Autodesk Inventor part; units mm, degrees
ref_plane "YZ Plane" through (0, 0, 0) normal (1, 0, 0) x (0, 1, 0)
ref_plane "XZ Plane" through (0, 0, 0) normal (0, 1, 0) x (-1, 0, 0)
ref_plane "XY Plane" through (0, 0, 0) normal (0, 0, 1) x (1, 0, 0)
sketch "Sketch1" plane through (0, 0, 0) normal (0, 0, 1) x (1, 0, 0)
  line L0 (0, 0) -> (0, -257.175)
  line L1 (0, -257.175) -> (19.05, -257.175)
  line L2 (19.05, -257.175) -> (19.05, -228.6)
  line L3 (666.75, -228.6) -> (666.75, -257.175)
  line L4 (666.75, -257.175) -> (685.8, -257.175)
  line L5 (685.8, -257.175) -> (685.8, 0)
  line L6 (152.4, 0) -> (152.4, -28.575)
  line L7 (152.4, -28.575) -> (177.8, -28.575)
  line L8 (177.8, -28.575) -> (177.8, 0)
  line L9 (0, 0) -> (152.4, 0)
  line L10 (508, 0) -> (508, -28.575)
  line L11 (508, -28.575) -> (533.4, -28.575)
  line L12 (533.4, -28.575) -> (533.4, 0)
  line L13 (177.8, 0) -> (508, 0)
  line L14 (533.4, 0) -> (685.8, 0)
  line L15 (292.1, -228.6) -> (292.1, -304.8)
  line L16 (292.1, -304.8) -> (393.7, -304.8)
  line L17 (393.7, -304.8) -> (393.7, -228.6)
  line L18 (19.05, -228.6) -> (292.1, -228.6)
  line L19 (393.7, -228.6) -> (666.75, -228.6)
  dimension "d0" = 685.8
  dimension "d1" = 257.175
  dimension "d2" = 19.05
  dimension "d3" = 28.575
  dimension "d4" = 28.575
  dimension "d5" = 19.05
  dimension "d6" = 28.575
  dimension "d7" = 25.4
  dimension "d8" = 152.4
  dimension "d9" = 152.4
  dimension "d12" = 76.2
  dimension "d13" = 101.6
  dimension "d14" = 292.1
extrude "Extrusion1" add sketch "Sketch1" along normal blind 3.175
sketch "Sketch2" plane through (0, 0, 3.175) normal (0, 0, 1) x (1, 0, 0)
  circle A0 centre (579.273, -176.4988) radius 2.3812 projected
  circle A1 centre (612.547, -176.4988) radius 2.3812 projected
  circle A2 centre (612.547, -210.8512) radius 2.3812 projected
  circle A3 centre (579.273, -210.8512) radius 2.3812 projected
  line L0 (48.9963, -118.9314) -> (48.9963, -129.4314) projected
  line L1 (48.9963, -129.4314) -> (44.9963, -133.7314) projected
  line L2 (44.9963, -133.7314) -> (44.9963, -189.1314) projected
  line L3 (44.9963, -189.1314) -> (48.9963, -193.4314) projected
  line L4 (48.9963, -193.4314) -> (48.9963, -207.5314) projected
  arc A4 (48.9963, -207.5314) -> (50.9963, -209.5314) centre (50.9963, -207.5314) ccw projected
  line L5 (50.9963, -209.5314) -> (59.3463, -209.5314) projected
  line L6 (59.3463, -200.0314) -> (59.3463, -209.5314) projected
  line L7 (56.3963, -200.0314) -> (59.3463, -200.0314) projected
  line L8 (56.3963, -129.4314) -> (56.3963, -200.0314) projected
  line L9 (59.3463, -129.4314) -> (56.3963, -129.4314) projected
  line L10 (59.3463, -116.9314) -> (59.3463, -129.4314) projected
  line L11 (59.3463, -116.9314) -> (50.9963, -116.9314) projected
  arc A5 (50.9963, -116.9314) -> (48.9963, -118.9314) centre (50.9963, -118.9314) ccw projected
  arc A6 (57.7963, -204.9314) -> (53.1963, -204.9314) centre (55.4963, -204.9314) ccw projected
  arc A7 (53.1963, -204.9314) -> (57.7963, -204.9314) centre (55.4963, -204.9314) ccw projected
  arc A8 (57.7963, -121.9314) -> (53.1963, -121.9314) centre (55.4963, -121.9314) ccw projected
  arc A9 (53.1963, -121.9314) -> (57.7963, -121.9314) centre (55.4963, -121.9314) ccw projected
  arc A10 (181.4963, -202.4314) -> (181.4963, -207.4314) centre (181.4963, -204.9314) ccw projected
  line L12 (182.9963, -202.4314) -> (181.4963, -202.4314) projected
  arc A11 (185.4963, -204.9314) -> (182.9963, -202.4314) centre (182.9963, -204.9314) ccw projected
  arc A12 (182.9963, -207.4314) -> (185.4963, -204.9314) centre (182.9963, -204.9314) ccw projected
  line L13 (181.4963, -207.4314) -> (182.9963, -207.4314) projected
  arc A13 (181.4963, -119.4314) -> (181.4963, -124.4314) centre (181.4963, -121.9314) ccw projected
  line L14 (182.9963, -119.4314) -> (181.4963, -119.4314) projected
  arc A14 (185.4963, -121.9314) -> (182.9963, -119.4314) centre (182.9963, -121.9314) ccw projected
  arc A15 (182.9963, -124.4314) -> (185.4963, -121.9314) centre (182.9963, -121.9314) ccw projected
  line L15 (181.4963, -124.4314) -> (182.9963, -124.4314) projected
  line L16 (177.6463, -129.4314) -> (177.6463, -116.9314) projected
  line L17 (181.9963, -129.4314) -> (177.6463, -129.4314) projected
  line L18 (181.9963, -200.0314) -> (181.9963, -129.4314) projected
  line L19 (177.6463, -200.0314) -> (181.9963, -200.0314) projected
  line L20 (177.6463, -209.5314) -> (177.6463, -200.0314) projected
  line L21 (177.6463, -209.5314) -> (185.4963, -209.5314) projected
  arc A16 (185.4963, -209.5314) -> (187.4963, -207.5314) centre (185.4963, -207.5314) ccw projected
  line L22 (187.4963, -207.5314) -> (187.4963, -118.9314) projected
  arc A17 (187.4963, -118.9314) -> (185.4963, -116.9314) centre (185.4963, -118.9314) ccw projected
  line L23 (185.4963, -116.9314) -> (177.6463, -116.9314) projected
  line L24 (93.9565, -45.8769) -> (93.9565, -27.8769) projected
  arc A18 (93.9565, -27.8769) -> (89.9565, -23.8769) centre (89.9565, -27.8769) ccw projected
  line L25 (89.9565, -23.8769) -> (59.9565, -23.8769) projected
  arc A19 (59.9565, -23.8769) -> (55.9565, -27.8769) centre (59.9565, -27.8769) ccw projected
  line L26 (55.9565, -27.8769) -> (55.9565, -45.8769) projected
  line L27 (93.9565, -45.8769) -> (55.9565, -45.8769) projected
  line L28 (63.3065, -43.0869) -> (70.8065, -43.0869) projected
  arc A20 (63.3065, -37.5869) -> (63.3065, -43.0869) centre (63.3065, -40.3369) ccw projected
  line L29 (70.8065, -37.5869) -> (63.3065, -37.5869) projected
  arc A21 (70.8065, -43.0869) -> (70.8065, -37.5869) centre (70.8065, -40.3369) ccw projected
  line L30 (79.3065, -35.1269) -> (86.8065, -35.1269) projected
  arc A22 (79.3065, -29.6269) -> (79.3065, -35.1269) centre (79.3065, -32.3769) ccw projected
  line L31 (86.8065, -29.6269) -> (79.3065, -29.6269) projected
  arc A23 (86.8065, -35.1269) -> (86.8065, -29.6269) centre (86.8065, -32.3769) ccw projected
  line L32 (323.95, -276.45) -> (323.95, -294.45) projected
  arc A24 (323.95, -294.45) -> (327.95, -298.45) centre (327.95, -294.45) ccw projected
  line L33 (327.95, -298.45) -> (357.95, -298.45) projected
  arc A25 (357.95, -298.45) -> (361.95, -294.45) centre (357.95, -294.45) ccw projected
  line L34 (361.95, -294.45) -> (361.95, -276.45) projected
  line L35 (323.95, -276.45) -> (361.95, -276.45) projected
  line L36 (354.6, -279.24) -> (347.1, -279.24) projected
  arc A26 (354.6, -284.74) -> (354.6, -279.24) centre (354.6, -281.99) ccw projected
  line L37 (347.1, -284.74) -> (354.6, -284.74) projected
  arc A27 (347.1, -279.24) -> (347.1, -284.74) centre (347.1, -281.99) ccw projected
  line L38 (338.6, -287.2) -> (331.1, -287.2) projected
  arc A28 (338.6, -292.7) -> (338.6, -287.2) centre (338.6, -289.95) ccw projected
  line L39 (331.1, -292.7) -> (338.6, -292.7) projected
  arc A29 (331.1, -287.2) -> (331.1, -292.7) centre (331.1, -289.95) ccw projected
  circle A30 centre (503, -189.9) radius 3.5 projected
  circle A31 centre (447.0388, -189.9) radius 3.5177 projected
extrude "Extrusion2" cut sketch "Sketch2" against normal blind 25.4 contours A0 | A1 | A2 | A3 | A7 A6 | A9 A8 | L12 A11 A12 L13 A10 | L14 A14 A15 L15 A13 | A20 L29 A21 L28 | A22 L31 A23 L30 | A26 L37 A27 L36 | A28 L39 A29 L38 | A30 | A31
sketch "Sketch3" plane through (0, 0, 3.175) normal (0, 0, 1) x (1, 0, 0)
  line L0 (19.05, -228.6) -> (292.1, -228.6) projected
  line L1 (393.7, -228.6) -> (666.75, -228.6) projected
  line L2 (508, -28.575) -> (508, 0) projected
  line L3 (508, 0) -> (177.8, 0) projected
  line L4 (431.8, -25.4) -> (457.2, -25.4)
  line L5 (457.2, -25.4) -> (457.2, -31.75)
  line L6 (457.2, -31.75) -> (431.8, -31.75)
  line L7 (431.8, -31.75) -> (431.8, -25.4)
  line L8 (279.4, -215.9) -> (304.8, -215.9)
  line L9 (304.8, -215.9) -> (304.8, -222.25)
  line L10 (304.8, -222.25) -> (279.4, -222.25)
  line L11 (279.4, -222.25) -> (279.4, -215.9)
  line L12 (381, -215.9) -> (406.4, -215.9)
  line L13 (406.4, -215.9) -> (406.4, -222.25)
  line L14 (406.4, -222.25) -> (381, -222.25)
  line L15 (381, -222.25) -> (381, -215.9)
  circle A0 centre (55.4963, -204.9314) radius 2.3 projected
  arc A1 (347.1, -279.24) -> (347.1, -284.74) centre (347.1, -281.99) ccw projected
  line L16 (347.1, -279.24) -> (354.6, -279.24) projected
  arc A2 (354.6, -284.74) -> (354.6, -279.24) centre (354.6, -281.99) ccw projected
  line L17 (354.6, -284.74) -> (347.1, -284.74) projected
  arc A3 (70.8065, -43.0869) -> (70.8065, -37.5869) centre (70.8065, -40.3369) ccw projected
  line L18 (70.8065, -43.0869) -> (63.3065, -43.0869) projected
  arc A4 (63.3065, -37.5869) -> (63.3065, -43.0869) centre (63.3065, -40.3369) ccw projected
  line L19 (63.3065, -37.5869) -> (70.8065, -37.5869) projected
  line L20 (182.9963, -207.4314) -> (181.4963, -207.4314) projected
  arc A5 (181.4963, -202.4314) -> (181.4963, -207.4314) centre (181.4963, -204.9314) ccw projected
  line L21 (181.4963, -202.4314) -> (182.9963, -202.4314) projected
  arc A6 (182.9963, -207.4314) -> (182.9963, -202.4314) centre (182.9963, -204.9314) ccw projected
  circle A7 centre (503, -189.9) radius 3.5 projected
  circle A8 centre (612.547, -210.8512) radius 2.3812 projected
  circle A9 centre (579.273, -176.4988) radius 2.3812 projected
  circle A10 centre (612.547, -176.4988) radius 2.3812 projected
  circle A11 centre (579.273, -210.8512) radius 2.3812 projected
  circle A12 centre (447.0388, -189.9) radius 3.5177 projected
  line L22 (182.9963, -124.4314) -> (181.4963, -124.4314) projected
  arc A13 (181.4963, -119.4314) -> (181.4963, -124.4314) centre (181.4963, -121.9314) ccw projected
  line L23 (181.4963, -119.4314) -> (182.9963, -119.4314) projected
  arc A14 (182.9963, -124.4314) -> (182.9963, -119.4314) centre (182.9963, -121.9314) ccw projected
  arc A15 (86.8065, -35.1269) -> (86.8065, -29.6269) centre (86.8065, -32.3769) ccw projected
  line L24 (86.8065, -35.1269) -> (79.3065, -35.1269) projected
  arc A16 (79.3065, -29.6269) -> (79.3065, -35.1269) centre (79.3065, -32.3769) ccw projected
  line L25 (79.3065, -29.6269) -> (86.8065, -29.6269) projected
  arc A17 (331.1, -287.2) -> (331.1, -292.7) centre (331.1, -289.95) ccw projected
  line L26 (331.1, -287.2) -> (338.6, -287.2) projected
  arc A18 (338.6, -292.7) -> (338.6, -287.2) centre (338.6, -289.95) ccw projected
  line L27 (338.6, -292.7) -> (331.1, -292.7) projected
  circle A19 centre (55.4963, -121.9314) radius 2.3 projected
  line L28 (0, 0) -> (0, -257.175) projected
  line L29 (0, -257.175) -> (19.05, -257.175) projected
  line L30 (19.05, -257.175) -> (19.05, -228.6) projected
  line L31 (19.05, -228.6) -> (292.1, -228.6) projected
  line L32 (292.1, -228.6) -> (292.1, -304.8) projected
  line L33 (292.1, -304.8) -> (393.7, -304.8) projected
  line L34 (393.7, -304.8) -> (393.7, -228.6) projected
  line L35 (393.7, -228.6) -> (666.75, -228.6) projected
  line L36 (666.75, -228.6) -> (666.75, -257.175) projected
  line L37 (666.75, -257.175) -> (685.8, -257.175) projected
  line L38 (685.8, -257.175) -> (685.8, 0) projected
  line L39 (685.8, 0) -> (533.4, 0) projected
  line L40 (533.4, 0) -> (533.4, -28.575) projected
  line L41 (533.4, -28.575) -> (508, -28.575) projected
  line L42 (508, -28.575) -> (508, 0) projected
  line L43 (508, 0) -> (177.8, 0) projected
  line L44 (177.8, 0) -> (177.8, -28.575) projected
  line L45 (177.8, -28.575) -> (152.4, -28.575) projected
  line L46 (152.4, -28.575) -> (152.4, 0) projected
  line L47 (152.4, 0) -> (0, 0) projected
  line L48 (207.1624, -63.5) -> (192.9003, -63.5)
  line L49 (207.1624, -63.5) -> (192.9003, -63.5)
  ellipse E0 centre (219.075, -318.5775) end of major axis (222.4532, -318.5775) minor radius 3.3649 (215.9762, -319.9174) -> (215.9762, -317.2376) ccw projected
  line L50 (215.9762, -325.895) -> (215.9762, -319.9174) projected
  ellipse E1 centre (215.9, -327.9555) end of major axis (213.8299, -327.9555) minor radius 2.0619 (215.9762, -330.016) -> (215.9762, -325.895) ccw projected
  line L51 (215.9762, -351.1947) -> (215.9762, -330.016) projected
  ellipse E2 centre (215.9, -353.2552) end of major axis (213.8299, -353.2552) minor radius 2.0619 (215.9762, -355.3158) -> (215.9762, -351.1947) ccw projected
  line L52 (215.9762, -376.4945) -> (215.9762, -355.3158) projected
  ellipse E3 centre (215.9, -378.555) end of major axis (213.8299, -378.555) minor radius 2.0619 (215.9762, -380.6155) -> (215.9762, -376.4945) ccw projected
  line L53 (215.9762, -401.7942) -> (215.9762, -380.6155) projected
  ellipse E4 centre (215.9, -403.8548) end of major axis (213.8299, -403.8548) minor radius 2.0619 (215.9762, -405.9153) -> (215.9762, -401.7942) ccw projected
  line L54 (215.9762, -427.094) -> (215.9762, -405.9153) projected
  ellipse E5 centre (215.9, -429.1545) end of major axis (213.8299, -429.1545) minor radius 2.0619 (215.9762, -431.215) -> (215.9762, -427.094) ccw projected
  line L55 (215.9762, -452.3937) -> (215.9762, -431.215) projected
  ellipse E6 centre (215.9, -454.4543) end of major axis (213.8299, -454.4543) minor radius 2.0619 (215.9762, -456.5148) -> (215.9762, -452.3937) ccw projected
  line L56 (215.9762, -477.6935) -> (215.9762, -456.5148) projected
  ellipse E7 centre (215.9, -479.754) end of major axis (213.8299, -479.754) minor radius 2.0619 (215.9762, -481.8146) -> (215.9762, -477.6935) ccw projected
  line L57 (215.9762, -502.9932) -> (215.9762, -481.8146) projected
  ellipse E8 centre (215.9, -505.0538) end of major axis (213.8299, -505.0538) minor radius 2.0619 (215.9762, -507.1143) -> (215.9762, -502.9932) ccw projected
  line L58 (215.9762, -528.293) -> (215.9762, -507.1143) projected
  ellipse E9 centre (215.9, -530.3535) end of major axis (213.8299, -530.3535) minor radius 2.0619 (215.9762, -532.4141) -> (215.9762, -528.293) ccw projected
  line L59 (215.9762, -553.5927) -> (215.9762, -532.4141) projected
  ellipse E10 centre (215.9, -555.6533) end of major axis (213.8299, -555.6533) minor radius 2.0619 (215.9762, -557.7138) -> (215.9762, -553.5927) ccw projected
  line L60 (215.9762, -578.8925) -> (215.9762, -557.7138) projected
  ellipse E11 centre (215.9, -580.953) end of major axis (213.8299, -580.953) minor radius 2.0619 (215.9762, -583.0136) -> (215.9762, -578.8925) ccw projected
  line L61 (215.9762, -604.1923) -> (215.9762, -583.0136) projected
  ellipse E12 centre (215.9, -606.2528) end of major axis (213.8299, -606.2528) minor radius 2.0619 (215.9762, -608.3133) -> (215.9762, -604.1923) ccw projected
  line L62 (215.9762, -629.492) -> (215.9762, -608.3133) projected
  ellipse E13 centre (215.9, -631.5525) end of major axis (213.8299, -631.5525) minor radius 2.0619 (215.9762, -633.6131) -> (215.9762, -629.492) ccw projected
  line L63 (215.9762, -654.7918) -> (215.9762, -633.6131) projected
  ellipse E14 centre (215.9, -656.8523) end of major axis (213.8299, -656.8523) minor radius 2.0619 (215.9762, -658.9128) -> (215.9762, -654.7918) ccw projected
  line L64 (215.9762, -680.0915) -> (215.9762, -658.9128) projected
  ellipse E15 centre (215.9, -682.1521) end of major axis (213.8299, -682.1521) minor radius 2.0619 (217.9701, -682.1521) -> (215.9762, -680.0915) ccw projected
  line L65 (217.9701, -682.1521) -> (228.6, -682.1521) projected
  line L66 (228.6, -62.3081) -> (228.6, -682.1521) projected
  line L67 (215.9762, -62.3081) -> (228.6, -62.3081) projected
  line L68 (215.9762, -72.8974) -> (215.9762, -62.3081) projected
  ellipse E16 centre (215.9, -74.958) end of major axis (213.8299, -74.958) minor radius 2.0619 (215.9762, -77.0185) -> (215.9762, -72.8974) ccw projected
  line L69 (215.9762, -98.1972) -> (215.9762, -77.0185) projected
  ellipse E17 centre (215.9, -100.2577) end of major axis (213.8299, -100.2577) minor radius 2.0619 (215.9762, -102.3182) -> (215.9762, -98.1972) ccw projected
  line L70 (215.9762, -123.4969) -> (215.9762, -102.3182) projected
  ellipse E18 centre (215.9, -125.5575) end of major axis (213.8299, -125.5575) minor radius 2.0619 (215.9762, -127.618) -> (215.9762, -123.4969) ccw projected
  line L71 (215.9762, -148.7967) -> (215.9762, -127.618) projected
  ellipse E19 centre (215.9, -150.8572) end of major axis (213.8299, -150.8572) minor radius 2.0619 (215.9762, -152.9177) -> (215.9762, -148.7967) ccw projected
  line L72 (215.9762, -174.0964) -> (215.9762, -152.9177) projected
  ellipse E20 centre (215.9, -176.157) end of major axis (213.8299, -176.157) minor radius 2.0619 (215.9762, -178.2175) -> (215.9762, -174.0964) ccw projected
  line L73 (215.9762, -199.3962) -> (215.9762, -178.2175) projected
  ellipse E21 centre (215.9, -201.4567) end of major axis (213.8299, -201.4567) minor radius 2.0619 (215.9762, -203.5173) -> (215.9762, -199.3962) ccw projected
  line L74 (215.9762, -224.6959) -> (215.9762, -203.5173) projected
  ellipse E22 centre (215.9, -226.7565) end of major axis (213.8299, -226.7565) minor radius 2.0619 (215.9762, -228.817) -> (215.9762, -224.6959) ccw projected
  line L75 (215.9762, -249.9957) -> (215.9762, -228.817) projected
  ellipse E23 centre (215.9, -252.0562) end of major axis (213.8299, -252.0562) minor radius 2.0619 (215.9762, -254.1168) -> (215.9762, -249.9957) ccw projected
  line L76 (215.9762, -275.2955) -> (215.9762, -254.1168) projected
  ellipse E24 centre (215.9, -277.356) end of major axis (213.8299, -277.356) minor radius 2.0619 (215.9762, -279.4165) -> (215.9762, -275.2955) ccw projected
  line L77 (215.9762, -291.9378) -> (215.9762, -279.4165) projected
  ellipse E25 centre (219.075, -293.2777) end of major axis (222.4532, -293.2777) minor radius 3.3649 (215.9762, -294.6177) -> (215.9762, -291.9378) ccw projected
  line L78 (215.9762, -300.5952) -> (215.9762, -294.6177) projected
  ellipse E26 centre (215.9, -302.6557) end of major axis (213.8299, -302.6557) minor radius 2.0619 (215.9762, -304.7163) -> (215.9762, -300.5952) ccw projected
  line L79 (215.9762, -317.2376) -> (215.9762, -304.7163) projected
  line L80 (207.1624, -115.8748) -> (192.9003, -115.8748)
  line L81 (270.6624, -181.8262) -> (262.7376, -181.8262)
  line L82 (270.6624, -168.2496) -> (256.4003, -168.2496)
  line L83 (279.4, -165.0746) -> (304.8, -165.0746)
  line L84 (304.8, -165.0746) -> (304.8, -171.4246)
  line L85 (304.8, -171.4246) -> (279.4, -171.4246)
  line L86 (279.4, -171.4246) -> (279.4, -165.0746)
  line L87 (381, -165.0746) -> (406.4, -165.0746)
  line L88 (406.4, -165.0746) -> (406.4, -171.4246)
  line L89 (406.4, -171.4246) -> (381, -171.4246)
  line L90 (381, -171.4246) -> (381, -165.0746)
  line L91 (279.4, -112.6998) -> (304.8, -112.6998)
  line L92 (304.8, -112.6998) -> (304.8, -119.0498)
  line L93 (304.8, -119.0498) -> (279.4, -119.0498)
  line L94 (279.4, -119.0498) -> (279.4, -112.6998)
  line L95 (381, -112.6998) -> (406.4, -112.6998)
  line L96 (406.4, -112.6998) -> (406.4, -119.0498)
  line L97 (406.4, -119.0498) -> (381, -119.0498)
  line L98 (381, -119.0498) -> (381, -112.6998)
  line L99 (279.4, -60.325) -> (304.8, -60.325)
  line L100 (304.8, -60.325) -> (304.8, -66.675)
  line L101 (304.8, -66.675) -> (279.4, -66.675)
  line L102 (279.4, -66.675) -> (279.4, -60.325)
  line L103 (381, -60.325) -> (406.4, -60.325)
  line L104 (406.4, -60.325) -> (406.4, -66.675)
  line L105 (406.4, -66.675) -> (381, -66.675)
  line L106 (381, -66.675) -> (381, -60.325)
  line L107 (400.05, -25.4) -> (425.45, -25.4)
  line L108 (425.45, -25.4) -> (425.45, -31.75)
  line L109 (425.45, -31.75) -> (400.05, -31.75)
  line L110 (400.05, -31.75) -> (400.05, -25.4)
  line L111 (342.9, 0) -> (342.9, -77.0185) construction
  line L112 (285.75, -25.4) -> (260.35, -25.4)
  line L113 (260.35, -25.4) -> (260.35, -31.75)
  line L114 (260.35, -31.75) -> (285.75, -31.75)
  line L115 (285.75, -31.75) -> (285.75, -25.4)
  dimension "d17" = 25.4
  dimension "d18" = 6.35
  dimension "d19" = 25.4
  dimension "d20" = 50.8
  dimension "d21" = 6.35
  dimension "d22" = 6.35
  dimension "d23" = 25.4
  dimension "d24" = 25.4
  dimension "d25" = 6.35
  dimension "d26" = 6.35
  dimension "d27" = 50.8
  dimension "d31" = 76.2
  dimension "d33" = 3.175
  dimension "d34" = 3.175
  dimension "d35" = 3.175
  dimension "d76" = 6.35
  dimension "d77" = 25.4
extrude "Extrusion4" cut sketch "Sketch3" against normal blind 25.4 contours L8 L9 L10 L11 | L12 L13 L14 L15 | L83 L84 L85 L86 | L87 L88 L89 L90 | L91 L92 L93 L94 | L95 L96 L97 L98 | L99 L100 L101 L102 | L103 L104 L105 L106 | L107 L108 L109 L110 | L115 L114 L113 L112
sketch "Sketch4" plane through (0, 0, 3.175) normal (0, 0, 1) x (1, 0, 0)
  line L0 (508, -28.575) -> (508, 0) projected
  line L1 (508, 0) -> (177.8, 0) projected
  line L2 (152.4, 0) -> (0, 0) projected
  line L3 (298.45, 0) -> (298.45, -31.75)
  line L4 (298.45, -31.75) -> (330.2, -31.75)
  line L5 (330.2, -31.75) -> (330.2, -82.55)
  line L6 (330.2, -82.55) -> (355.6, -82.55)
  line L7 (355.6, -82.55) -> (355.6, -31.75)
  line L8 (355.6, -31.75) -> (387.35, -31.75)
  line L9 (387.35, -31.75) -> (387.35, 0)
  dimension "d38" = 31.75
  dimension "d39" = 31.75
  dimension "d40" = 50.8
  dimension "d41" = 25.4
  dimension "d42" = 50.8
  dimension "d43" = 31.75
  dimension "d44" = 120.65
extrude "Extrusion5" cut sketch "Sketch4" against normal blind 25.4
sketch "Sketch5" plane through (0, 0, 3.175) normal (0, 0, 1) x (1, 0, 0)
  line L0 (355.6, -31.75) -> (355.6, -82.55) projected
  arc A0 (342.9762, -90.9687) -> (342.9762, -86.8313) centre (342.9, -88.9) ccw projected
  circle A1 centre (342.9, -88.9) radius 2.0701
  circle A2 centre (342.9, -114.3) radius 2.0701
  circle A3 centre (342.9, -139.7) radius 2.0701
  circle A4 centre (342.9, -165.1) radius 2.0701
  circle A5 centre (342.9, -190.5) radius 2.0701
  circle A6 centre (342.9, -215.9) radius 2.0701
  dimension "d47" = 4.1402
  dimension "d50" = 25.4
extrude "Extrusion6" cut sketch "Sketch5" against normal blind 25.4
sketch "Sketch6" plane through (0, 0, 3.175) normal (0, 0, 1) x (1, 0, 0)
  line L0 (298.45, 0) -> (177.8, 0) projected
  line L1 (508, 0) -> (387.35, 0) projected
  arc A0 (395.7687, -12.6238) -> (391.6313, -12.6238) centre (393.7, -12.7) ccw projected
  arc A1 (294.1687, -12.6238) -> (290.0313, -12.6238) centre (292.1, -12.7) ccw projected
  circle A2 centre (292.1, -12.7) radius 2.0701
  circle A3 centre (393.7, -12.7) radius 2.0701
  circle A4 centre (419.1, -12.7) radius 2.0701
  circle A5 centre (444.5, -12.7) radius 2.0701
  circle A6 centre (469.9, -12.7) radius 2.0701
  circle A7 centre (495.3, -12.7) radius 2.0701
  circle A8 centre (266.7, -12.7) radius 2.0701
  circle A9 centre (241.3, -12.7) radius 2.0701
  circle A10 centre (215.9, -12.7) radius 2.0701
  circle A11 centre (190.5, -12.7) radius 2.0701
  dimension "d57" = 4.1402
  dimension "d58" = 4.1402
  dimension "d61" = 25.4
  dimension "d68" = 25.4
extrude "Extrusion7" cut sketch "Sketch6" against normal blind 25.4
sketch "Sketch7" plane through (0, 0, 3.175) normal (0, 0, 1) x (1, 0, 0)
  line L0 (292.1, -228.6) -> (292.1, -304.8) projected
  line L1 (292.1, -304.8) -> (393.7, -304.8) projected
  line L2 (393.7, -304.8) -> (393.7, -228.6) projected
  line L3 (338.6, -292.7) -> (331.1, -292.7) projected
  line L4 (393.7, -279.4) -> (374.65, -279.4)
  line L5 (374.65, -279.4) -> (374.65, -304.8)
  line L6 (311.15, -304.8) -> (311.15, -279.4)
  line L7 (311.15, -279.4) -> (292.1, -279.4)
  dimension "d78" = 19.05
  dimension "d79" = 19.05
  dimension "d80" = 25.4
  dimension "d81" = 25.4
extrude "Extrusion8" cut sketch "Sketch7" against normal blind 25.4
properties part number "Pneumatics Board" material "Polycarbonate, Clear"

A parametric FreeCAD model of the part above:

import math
import FreeCAD as App
import Part
import Sketcher

V = App.Vector
Q = App.Units.Quantity


def add_polygon(sketch, points):
    """Adds a closed chain of lines whose ends are joined by coincident constraints."""
    first, n = sketch.GeometryCount, len(points)
    for a, b in zip(points, points[1:] + points[:1]):
        sketch.addGeometry(Part.LineSegment(App.Vector(*a, 0), App.Vector(*b, 0)), False)
    for i in range(n):
        sketch.addConstraint(Sketcher.Constraint("Coincident", first + i, 2, first + (i + 1) % n, 1))

doc = App.newDocument("Part")
params = doc.addObject("Spreadsheet::Sheet", "Params")
for row, (alias, value) in enumerate([
    ("sketch1_width", "6 in"),
    ("sketch1_width2", "4 in"),
    ("sketch1_width3", "1 in"),
    ("sketch1_height", "3 in"),
    ("sketch1_width4", "0.75 in"),
    ("pad1_length", "0.125 in"),
    ("sketch2_diameter", "0.1875 in"),
    ("pocket1_length", "1 in"),
    ("sketch3_width", "1 in"),
    ("sketch3_height", "0.25 in"),
    ("pocket2_length", "1 in"),
    ("sketch4_width", "1 in"),
    ("sketch4_height", "2 in"),
    ("sketch4_width2", "1.25 in"),
    ("pocket3_length", "1 in"),
    ("sketch5_diameter", "0.163 in"),
    ("pocket4_length", "1 in"),
    ("sketch6_diameter", "0.163 in"),
    ("pocket5_length", "1 in"),
    ("sketch7_height", "1 in"),
    ("sketch7_width", "0.75 in"),
    ("pocket6_length", "1 in"),
], start=1):
    params.set(f"A{row}", alias)
    params.set(f"B{row}", "=" + value)
    params.setAlias(f"B{row}", alias)

body = doc.addObject("PartDesign::Body", "Body")

sketch1 = body.newObject("Sketcher::SketchObject", "Sketch")
sketch1.AttachmentSupport = (doc.getObject("XY_Plane"), [""])
sketch1.MapMode = "FlatFace"
add_polygon(sketch1, [(152.4, 0), (0, 0), (0, -257.175), (19.05, -257.175), (19.05, -228.6), (292.1, -228.6), (292.1, -304.8), (393.7, -304.8), (393.7, -228.6), (666.75, -228.6), (666.75, -257.175), (685.8, -257.175), (685.8, 0), (533.4, 0), (533.4, -28.575), (508, -28.575), (508, 0), (177.8, 0), (177.8, -28.575), (152.4, -28.575)])
sketch1.addConstraint([
    Sketcher.Constraint("Horizontal", 0),
    Sketcher.Constraint("Vertical", 1),
    Sketcher.Constraint("Horizontal", 2),
    Sketcher.Constraint("Vertical", 3),
    Sketcher.Constraint("Horizontal", 4),
    Sketcher.Constraint("Vertical", 5),
    Sketcher.Constraint("Horizontal", 6),
    Sketcher.Constraint("Vertical", 7),
    Sketcher.Constraint("Horizontal", 8),
    Sketcher.Constraint("Vertical", 9),
    Sketcher.Constraint("Horizontal", 10),
    Sketcher.Constraint("Vertical", 11),
    Sketcher.Constraint("Horizontal", 12),
    Sketcher.Constraint("Vertical", 13),
    Sketcher.Constraint("Horizontal", 14),
    Sketcher.Constraint("Vertical", 15),
    Sketcher.Constraint("Horizontal", 16),
    Sketcher.Constraint("Vertical", 17),
    Sketcher.Constraint("Horizontal", 18),
    Sketcher.Constraint("Vertical", 19),
    Sketcher.Constraint("Coincident", 0, 2, -1, 1),
    Sketcher.Constraint("PointOnObject", 11, 2, -1),
    Sketcher.Constraint("PointOnObject", 15, 2, -1),
    Sketcher.Constraint("Horizontal", 4, 2, 7, 2),
    Sketcher.Constraint("Horizontal", 2, 2, 9, 2),
    Sketcher.Constraint("Horizontal", 14, 2, 17, 2),
    Sketcher.Constraint("Equal", 4, 8),
    Sketcher.Constraint("Equal", 2, 10),
    Sketcher.Constraint("Equal", 0, 12),
    Sketcher.Constraint("Equal", 14, 18),
    Sketcher.Constraint("Equal", 9, 13),
    Sketcher.Constraint("DistanceX", 0, 2, 0, 1, Q("6 in")),
    Sketcher.Constraint("DistanceX", 6, 1, 6, 2, Q("4 in")),
    Sketcher.Constraint("DistanceX", 14, 2, 14, 1, Q("1 in")),
    Sketcher.Constraint("DistanceY", 5, 2, 5, 1, Q("3 in")),
    Sketcher.Constraint("DistanceX", -1, 1, 10, 2, Q("27 in")),
    Sketcher.Constraint("DistanceX", 2, 1, 2, 2, Q("0.75 in")),
    Sketcher.Constraint("DistanceY", 1, 2, 1, 1, Q("10.125 in")),
    Sketcher.Constraint("DistanceY", 3, 1, 3, 2, Q("1.125 in")),
])
sketch1.setExpression("Constraints[51]", "Params.sketch1_width")
sketch1.setExpression("Constraints[52]", "Params.sketch1_width2")
sketch1.setExpression("Constraints[53]", "Params.sketch1_width3")
sketch1.setExpression("Constraints[54]", "Params.sketch1_height")
sketch1.setExpression("Constraints[56]", "Params.sketch1_width4")
pad1 = body.newObject("PartDesign::Pad", "Pad")
pad1.Profile = sketch1
pad1.setExpression("Length", "Params.pad1_length")

sketch2 = body.newObject("Sketcher::SketchObject", "Sketch001")
sketch2.AttachmentSupport = (doc.getObject("XY_Plane"), [""])
sketch2.MapMode = "FlatFace"
sketch2.AttachmentOffset = App.Placement(V(0, 0, 0.125 * 25.4), App.Rotation())
sketch2.addGeometry([
    Part.Circle(V(579.273, -176.4988, 0), V(0, 0, 1), 2.3812),
    Part.Circle(V(612.547, -176.4988, 0), V(0, 0, 1), 2.3812),
    Part.Circle(V(612.547, -210.8512, 0), V(0, 0, 1), 2.3812),
    Part.Circle(V(579.273, -210.8512, 0), V(0, 0, 1), 2.3812),
    Part.Circle(V(55.4963, -204.9314, 0), V(0, 0, 1), 2.3),
    Part.Circle(V(55.4963, -121.9314, 0), V(0, 0, 1), 2.3),
    Part.LineSegment(V(182.9963, -202.4314, 0), V(181.4963, -202.4314, 0)),
    Part.ArcOfCircle(Part.Circle(V(181.4963, -204.9314, 0), V(0, 0, 1), 2.5), math.radians(90), math.radians(270)),
    Part.LineSegment(V(181.4963, -207.4314, 0), V(182.9963, -207.4314, 0)),
    Part.ArcOfCircle(Part.Circle(V(182.9963, -204.9314, 0), V(0, 0, 1), 2.5), math.radians(-90), math.radians(90)),
    Part.LineSegment(V(182.9963, -119.4314, 0), V(181.4963, -119.4314, 0)),
    Part.ArcOfCircle(Part.Circle(V(181.4963, -121.9314, 0), V(0, 0, 1), 2.5), math.radians(90), math.radians(270)),
    Part.LineSegment(V(181.4963, -124.4314, 0), V(182.9963, -124.4314, 0)),
    Part.ArcOfCircle(Part.Circle(V(182.9963, -121.9314, 0), V(0, 0, 1), 2.5), math.radians(-90), math.radians(90)),
    Part.ArcOfCircle(Part.Circle(V(63.3065, -40.3369, 0), V(0, 0, 1), 2.75), math.radians(90), math.radians(270)),
    Part.LineSegment(V(63.3065, -43.0869, 0), V(70.8065, -43.0869, 0)),
    Part.ArcOfCircle(Part.Circle(V(70.8065, -40.3369, 0), V(0, 0, 1), 2.75), math.radians(-90), math.radians(90)),
    Part.LineSegment(V(70.8065, -37.5869, 0), V(63.3065, -37.5869, 0)),
    Part.ArcOfCircle(Part.Circle(V(79.3065, -32.3769, 0), V(0, 0, 1), 2.75), math.radians(90), math.radians(270)),
    Part.LineSegment(V(79.3065, -35.1269, 0), V(86.8065, -35.1269, 0)),
    Part.ArcOfCircle(Part.Circle(V(86.8065, -32.3769, 0), V(0, 0, 1), 2.75), math.radians(-90), math.radians(90)),
    Part.LineSegment(V(86.8065, -29.6269, 0), V(79.3065, -29.6269, 0)),
    Part.ArcOfCircle(Part.Circle(V(354.6, -281.99, 0), V(0, 0, 1), 2.75), math.radians(-90), math.radians(90)),
    Part.LineSegment(V(354.6, -279.24, 0), V(347.1, -279.24, 0)),
    Part.ArcOfCircle(Part.Circle(V(347.1, -281.99, 0), V(0, 0, 1), 2.75), math.radians(90), math.radians(270)),
    Part.LineSegment(V(347.1, -284.74, 0), V(354.6, -284.74, 0)),
    Part.ArcOfCircle(Part.Circle(V(338.6, -289.95, 0), V(0, 0, 1), 2.75), math.radians(-90), math.radians(90)),
    Part.LineSegment(V(338.6, -287.2, 0), V(331.1, -287.2, 0)),
    Part.ArcOfCircle(Part.Circle(V(331.1, -289.95, 0), V(0, 0, 1), 2.75), math.radians(90), math.radians(270)),
    Part.LineSegment(V(331.1, -292.7, 0), V(338.6, -292.7, 0)),
    Part.Circle(V(503, -189.9, 0), V(0, 0, 1), 3.5),
    Part.Circle(V(447.0388, -189.9, 0), V(0, 0, 1), 3.5177),
], False)
sketch2.addConstraint([
    Sketcher.Constraint("Tangent", 6, 2, 7, 1),
    Sketcher.Constraint("Tangent", 7, 2, 8, 1),
    Sketcher.Constraint("Tangent", 8, 2, 9, 1),
    Sketcher.Constraint("Tangent", 9, 2, 6, 1),
    Sketcher.Constraint("Tangent", 10, 2, 11, 1),
    Sketcher.Constraint("Tangent", 11, 2, 12, 1),
    Sketcher.Constraint("Tangent", 12, 2, 13, 1),
    Sketcher.Constraint("Tangent", 13, 2, 10, 1),
    Sketcher.Constraint("Tangent", 14, 2, 15, 1),
    Sketcher.Constraint("Tangent", 15, 2, 16, 1),
    Sketcher.Constraint("Tangent", 16, 2, 17, 1),
    Sketcher.Constraint("Tangent", 17, 2, 14, 1),
    Sketcher.Constraint("Tangent", 18, 2, 19, 1),
    Sketcher.Constraint("Tangent", 19, 2, 20, 1),
    Sketcher.Constraint("Tangent", 20, 2, 21, 1),
    Sketcher.Constraint("Tangent", 21, 2, 18, 1),
    Sketcher.Constraint("Tangent", 22, 2, 23, 1),
    Sketcher.Constraint("Tangent", 23, 2, 24, 1),
    Sketcher.Constraint("Tangent", 24, 2, 25, 1),
    Sketcher.Constraint("Tangent", 25, 2, 22, 1),
    Sketcher.Constraint("Tangent", 26, 2, 27, 1),
    Sketcher.Constraint("Tangent", 27, 2, 28, 1),
    Sketcher.Constraint("Tangent", 28, 2, 29, 1),
    Sketcher.Constraint("Tangent", 29, 2, 26, 1),
    Sketcher.Constraint("Horizontal", 6),
    Sketcher.Constraint("Horizontal", 8),
    Sketcher.Constraint("Horizontal", 10),
    Sketcher.Constraint("Horizontal", 12),
    Sketcher.Constraint("Horizontal", 15),
    Sketcher.Constraint("Horizontal", 17),
    Sketcher.Constraint("Horizontal", 19),
    Sketcher.Constraint("Horizontal", 21),
    Sketcher.Constraint("Horizontal", 23),
    Sketcher.Constraint("Horizontal", 25),
    Sketcher.Constraint("Horizontal", 27),
    Sketcher.Constraint("Horizontal", 29),
    Sketcher.Constraint("Equal", 0, 1),
    Sketcher.Constraint("Equal", 1, 2),
    Sketcher.Constraint("Equal", 2, 3),
    Sketcher.Constraint("Equal", 4, 5),
    Sketcher.Constraint("Equal", 9, 11),
    Sketcher.Constraint("Equal", 16, 18),
    Sketcher.Constraint("Equal", 20, 22),
    Sketcher.Constraint("Equal", 24, 26),
    Sketcher.Constraint("Horizontal", 0, 3, 1, 3),
    Sketcher.Constraint("Horizontal", 2, 3, 3, 3),
    Sketcher.Constraint("Horizontal", 4, 3, 7, 3),
    Sketcher.Constraint("Horizontal", 5, 3, 11, 3),
    Sketcher.Constraint("Horizontal", 30, 3, 31, 3),
    Sketcher.Constraint("Vertical", 1, 3, 2, 3),
    Sketcher.Constraint("Vertical", 0, 3, 3, 3),
    Sketcher.Constraint("Vertical", 4, 3, 5, 3),
    Sketcher.Constraint("Vertical", 7, 3, 11, 3),
    Sketcher.Constraint("Vertical", 9, 3, 13, 3),
    Sketcher.Constraint("Equal", 17, 19),
    Sketcher.Constraint("Equal", 21, 23),
    Sketcher.Constraint("Equal", 25, 27),
    Sketcher.Constraint("Diameter", 0, Q("0.1875 in")),
    Sketcher.Constraint("Diameter", 4, Q("0.1811 in")),
    Sketcher.Constraint("Diameter", 30, Q("0.2756 in")),
    Sketcher.Constraint("Diameter", 31, 7.0354),
    Sketcher.Constraint("Radius", 7, 2.5),
    Sketcher.Constraint("Radius", 14, 2.75),
    Sketcher.Constraint("DistanceX", 0, 3, 1, 3, Q("1.31 in")),
    Sketcher.Constraint("DistanceX", 6, 2, 6, 1, 1.5),
    Sketcher.Constraint("DistanceX", 15, 1, 15, 2, 7.5),
    Sketcher.Constraint("DistanceX", -1, 1, 4, 3, Q("2.1849 in")),
    Sketcher.Constraint("DistanceX", -1, 1, 18, 3, Q("3.1223 in")),
    Sketcher.Constraint("DistanceX", -1, 1, 26, 3, Q("13.3307 in")),
    Sketcher.Constraint("DistanceY", 7, 2, -1, 1, Q("8.1666 in")),
    Sketcher.Constraint("DistanceY", 16, 2, -1, 1, Q("1.4798 in")),
    Sketcher.Constraint("DistanceY", 22, 2, -1, 1, Q("10.9937 in")),
    Sketcher.Constraint("DistanceY", 4, 3, 0, 3, Q("1.1194 in")),
    Sketcher.Constraint("DistanceX", 7, 3, 3, 3, Q("15.6605 in")),
    Sketcher.Constraint("DistanceX", 5, 3, 14, 3, Q("0.3075 in")),
    Sketcher.Constraint("DistanceX", 14, 3, 13, 3, Q("4.7122 in")),
    Sketcher.Constraint("DistanceX", 7, 3, 22, 3, Q("6.8151 in")),
    Sketcher.Constraint("DistanceY", 26, 3, 9, 3, Q("3.3472 in")),
    Sketcher.Constraint("DistanceY", 26, 3, 13, 3, Q("6.6149 in")),
    Sketcher.Constraint("DistanceY", 30, 3, 0, 3, Q("0.5276 in")),
    Sketcher.Constraint("DistanceX", 31, 3, 30, 3, Q("2.2032 in")),
    Sketcher.Constraint("DistanceX", 24, 3, 31, 3, Q("3.9346 in")),
    Sketcher.Constraint("DistanceY", 2, 3, -1, 1, 210.8512),
    Sketcher.Constraint("DistanceY", 18, 3, -1, 1, 32.377),
])
sketch2.setExpression("Constraints[57]", "Params.sketch2_diameter")
pocket1 = body.newObject("PartDesign::Pocket", "Pocket")
pocket1.Profile = sketch2
pocket1.setExpression("Length", "Params.pocket1_length")

sketch3 = body.newObject("Sketcher::SketchObject", "Sketch002")
sketch3.AttachmentSupport = (doc.getObject("XY_Plane"), [""])
sketch3.MapMode = "FlatFace"
sketch3.AttachmentOffset = App.Placement(V(0, 0, 0.125 * 25.4), App.Rotation())
add_polygon(sketch3, [(304.8, -215.9), (279.4, -215.9), (279.4, -222.25), (304.8, -222.25)])
add_polygon(sketch3, [(406.4, -215.9), (381, -215.9), (381, -222.25), (406.4, -222.25)])
add_polygon(sketch3, [(304.8, -165.0746), (279.4, -165.0746), (279.4, -171.4246), (304.8, -171.4246)])
add_polygon(sketch3, [(406.4, -165.0746), (381, -165.0746), (381, -171.4246), (406.4, -171.4246)])
add_polygon(sketch3, [(304.8, -112.6998), (279.4, -112.6998), (279.4, -119.0498), (304.8, -119.0498)])
add_polygon(sketch3, [(406.4, -112.6998), (381, -112.6998), (381, -119.0498), (406.4, -119.0498)])
add_polygon(sketch3, [(304.8, -60.325), (279.4, -60.325), (279.4, -66.675), (304.8, -66.675)])
add_polygon(sketch3, [(406.4, -60.325), (381, -60.325), (381, -66.675), (406.4, -66.675)])
add_polygon(sketch3, [(425.45, -25.4), (400.05, -25.4), (400.05, -31.75), (425.45, -31.75)])
add_polygon(sketch3, [(285.75, -31.75), (285.75, -25.4), (260.35, -25.4), (260.35, -31.75)])
sketch3.addConstraint([
    Sketcher.Constraint("Horizontal", 0),
    Sketcher.Constraint("Vertical", 1),
    Sketcher.Constraint("Horizontal", 2),
    Sketcher.Constraint("Vertical", 3),
    Sketcher.Constraint("Horizontal", 4),
    Sketcher.Constraint("Vertical", 5),
    Sketcher.Constraint("Horizontal", 6),
    Sketcher.Constraint("Vertical", 7),
    Sketcher.Constraint("Horizontal", 8),
    Sketcher.Constraint("Vertical", 9),
    Sketcher.Constraint("Horizontal", 10),
    Sketcher.Constraint("Vertical", 11),
    Sketcher.Constraint("Horizontal", 12),
    Sketcher.Constraint("Vertical", 13),
    Sketcher.Constraint("Horizontal", 14),
    Sketcher.Constraint("Vertical", 15),
    Sketcher.Constraint("Horizontal", 16),
    Sketcher.Constraint("Vertical", 17),
    Sketcher.Constraint("Horizontal", 18),
    Sketcher.Constraint("Vertical", 19),
    Sketcher.Constraint("Horizontal", 20),
    Sketcher.Constraint("Vertical", 21),
    Sketcher.Constraint("Horizontal", 22),
    Sketcher.Constraint("Vertical", 23),
    Sketcher.Constraint("Horizontal", 24),
    Sketcher.Constraint("Vertical", 25),
    Sketcher.Constraint("Horizontal", 26),
    Sketcher.Constraint("Vertical", 27),
    Sketcher.Constraint("Horizontal", 28),
    Sketcher.Constraint("Vertical", 29),
    Sketcher.Constraint("Horizontal", 30),
    Sketcher.Constraint("Vertical", 31),
    Sketcher.Constraint("Horizontal", 32),
    Sketcher.Constraint("Vertical", 33),
    Sketcher.Constraint("Horizontal", 34),
    Sketcher.Constraint("Vertical", 35),
    Sketcher.Constraint("Vertical", 36),
    Sketcher.Constraint("Horizontal", 37),
    Sketcher.Constraint("Vertical", 38),
    Sketcher.Constraint("Horizontal", 39),
    Sketcher.Constraint("Horizontal", 3, 2, 4, 2),
    Sketcher.Constraint("Horizontal", 2, 2, 5, 2),
    Sketcher.Constraint("Horizontal", 11, 2, 12, 2),
    Sketcher.Constraint("Horizontal", 10, 2, 13, 2),
    Sketcher.Constraint("Horizontal", 19, 2, 20, 2),
    Sketcher.Constraint("Horizontal", 18, 2, 21, 2),
    Sketcher.Constraint("Horizontal", 27, 2, 28, 2),
    Sketcher.Constraint("Horizontal", 26, 2, 29, 2),
    Sketcher.Constraint("Horizontal", 35, 2, 36, 2),
    Sketcher.Constraint("Horizontal", 34, 2, 38, 2),
    Sketcher.Constraint("Vertical", 1, 2, 8, 2),
    Sketcher.Constraint("Vertical", 3, 2, 10, 2),
    Sketcher.Constraint("Vertical", 5, 2, 12, 2),
    Sketcher.Constraint("Vertical", 7, 2, 14, 2),
    Sketcher.Constraint("Vertical", 9, 2, 16, 2),
    Sketcher.Constraint("Vertical", 11, 2, 18, 2),
    Sketcher.Constraint("Vertical", 13, 2, 20, 2),
    Sketcher.Constraint("Vertical", 15, 2, 22, 2),
    Sketcher.Constraint("Vertical", 17, 2, 24, 2),
    Sketcher.Constraint("Vertical", 19, 2, 26, 2),
    Sketcher.Constraint("Vertical", 21, 2, 28, 2),
    Sketcher.Constraint("Vertical", 23, 2, 30, 2),
    Sketcher.Constraint("Equal", 2, 4),
    Sketcher.Constraint("Equal", 30, 32),
    Sketcher.Constraint("Equal", 34, 37),
    Sketcher.Constraint("Equal", 7, 9),
    Sketcher.Constraint("Equal", 15, 17),
    Sketcher.Constraint("Equal", 23, 25),
    Sketcher.Constraint("Equal", 31, 33),
    Sketcher.Constraint("DistanceX", 0, 2, 0, 1, Q("1 in")),
    Sketcher.Constraint("DistanceY", 32, 2, -1, 1, Q("1 in")),
    Sketcher.Constraint("DistanceX", 3, 2, 4, 2, Q("3 in")),
    Sketcher.Constraint("DistanceY", 1, 2, 1, 1, Q("0.25 in")),
    Sketcher.Constraint("DistanceX", 32, 2, 31, 2, Q("0.25 in")),
    Sketcher.Constraint("DistanceX", 24, 2, 36, 2, Q("0.25 in")),
    Sketcher.Constraint("DistanceX", -1, 1, 0, 2, Q("11 in")),
    Sketcher.Constraint("DistanceY", 0, 2, -1, 1, Q("8.5 in")),
    Sketcher.Constraint("DistanceY", 8, 2, -1, 1, Q("6.499 in")),
    Sketcher.Constraint("DistanceY", 16, 2, -1, 1, Q("4.437 in")),
    Sketcher.Constraint("DistanceY", 24, 2, -1, 1, Q("2.375 in")),
])
sketch3.setExpression("Constraints[109]", "Params.sketch3_width")
sketch3.setExpression("Constraints[112]", "Params.sketch3_height")
pocket2 = body.newObject("PartDesign::Pocket", "Pocket001")
pocket2.Profile = sketch3
pocket2.setExpression("Length", "Params.pocket2_length")

sketch4 = body.newObject("Sketcher::SketchObject", "Sketch003")
sketch4.AttachmentSupport = (doc.getObject("XY_Plane"), [""])
sketch4.MapMode = "FlatFace"
sketch4.AttachmentOffset = App.Placement(V(0, 0, 0.125 * 25.4), App.Rotation())
add_polygon(sketch4, [(387.35, -31.75), (387.35, 0), (298.45, 0), (298.45, -31.75), (330.2, -31.75), (330.2, -82.55), (355.6, -82.55), (355.6, -31.75)])
sketch4.addConstraint([
    Sketcher.Constraint("Vertical", 0),
    Sketcher.Constraint("Horizontal", 1),
    Sketcher.Constraint("Vertical", 2),
    Sketcher.Constraint("Horizontal", 3),
    Sketcher.Constraint("Vertical", 4),
    Sketcher.Constraint("Horizontal", 5),
    Sketcher.Constraint("Vertical", 6),
    Sketcher.Constraint("Horizontal", 7),
    Sketcher.Constraint("PointOnObject", 0, 2, -1),
    Sketcher.Constraint("Horizontal", 3, 2, 6, 2),
    Sketcher.Constraint("Equal", 3, 7),
    Sketcher.Constraint("Equal", 7, 0),
    Sketcher.Constraint("DistanceX", 5, 1, 5, 2, Q("1 in")),
    Sketcher.Constraint("DistanceY", 4, 2, 4, 1, Q("2 in")),
    Sketcher.Constraint("DistanceX", 3, 1, 3, 2, Q("1.25 in")),
    Sketcher.Constraint("DistanceX", -1, 1, 3, 2, Q("13 in")),
])
sketch4.setExpression("Constraints[20]", "Params.sketch4_width")
sketch4.setExpression("Constraints[21]", "Params.sketch4_height")
sketch4.setExpression("Constraints[22]", "Params.sketch4_width2")
pocket3 = body.newObject("PartDesign::Pocket", "Pocket002")
pocket3.Profile = sketch4
pocket3.setExpression("Length", "Params.pocket3_length")

sketch5 = body.newObject("Sketcher::SketchObject", "Sketch004")
sketch5.AttachmentSupport = (doc.getObject("XY_Plane"), [""])
sketch5.MapMode = "FlatFace"
sketch5.AttachmentOffset = App.Placement(V(0, 0, 0.125 * 25.4), App.Rotation())
sketch5.addGeometry([
    Part.Circle(V(342.9, -88.9, 0), V(0, 0, 1), 2.070103),
    Part.Circle(V(342.9, -114.3, 0), V(0, 0, 1), 2.0701),
    Part.Circle(V(342.9, -139.7, 0), V(0, 0, 1), 2.0701),
    Part.Circle(V(342.9, -165.1, 0), V(0, 0, 1), 2.0701),
    Part.Circle(V(342.9, -190.5, 0), V(0, 0, 1), 2.0701),
    Part.Circle(V(342.9, -215.9, 0), V(0, 0, 1), 2.0701),
], False)
sketch5.addConstraint([
    Sketcher.Constraint("Equal", 0, 1),
    Sketcher.Constraint("Equal", 1, 2),
    Sketcher.Constraint("Equal", 2, 3),
    Sketcher.Constraint("Equal", 3, 4),
    Sketcher.Constraint("Equal", 4, 5),
    Sketcher.Constraint("Vertical", 0, 3, 1, 3),
    Sketcher.Constraint("Vertical", 1, 3, 2, 3),
    Sketcher.Constraint("Vertical", 2, 3, 3, 3),
    Sketcher.Constraint("Vertical", 3, 3, 4, 3),
    Sketcher.Constraint("Vertical", 4, 3, 5, 3),
    Sketcher.Constraint("Diameter", 0, Q("0.163 in")),
    Sketcher.Constraint("DistanceY", 1, 3, 0, 3, Q("1 in")),
    Sketcher.Constraint("DistanceY", 2, 3, 1, 3, Q("1 in")),
    Sketcher.Constraint("DistanceY", 3, 3, 2, 3, Q("1 in")),
    Sketcher.Constraint("DistanceY", 4, 3, 3, 3, Q("1 in")),
    Sketcher.Constraint("DistanceY", 5, 3, 4, 3, Q("1 in")),
    Sketcher.Constraint("DistanceX", -1, 1, 0, 3, Q("13.5 in")),
    Sketcher.Constraint("DistanceY", 0, 3, -1, 1, Q("3.5 in")),
])
sketch5.setExpression("Constraints[10]", "Params.sketch5_diameter")
pocket4 = body.newObject("PartDesign::Pocket", "Pocket003")
pocket4.Profile = sketch5
pocket4.setExpression("Length", "Params.pocket4_length")

sketch6 = body.newObject("Sketcher::SketchObject", "Sketch005")
sketch6.AttachmentSupport = (doc.getObject("XY_Plane"), [""])
sketch6.MapMode = "FlatFace"
sketch6.AttachmentOffset = App.Placement(V(0, 0, 0.125 * 25.4), App.Rotation())
sketch6.addGeometry([
    Part.Circle(V(393.7, -12.7, 0), V(0, 0, 1), 2.070103),
    Part.Circle(V(292.1, -12.7, 0), V(0, 0, 1), 2.070103),
    Part.Circle(V(419.1, -12.7, 0), V(0, 0, 1), 2.0701),
    Part.Circle(V(444.5, -12.7, 0), V(0, 0, 1), 2.0701),
    Part.Circle(V(469.9, -12.7, 0), V(0, 0, 1), 2.0701),
    Part.Circle(V(495.3, -12.7, 0), V(0, 0, 1), 2.0701),
    Part.Circle(V(266.7, -12.7, 0), V(0, 0, 1), 2.0701),
    Part.Circle(V(241.3, -12.7, 0), V(0, 0, 1), 2.0701),
    Part.Circle(V(215.9, -12.7, 0), V(0, 0, 1), 2.0701),
    Part.Circle(V(190.5, -12.7, 0), V(0, 0, 1), 2.0701),
], False)
sketch6.addConstraint([
    Sketcher.Constraint("Equal", 0, 1),
    Sketcher.Constraint("Equal", 1, 2),
    Sketcher.Constraint("Equal", 2, 3),
    Sketcher.Constraint("Equal", 3, 4),
    Sketcher.Constraint("Equal", 4, 5),
    Sketcher.Constraint("Equal", 5, 6),
    Sketcher.Constraint("Equal", 6, 7),
    Sketcher.Constraint("Equal", 7, 8),
    Sketcher.Constraint("Equal", 8, 9),
    Sketcher.Constraint("Horizontal", 0, 3, 1, 3),
    Sketcher.Constraint("Horizontal", 1, 3, 2, 3),
    Sketcher.Constraint("Horizontal", 2, 3, 3, 3),
    Sketcher.Constraint("Horizontal", 3, 3, 4, 3),
    Sketcher.Constraint("Horizontal", 4, 3, 5, 3),
    Sketcher.Constraint("Horizontal", 5, 3, 6, 3),
    Sketcher.Constraint("Horizontal", 6, 3, 7, 3),
    Sketcher.Constraint("Horizontal", 7, 3, 8, 3),
    Sketcher.Constraint("Horizontal", 8, 3, 9, 3),
    Sketcher.Constraint("Diameter", 0, Q("0.163 in")),
    Sketcher.Constraint("DistanceX", 0, 3, 2, 3, Q("1 in")),
    Sketcher.Constraint("DistanceX", 2, 3, 3, 3, Q("1 in")),
    Sketcher.Constraint("DistanceX", 3, 3, 4, 3, Q("1 in")),
    Sketcher.Constraint("DistanceX", 4, 3, 5, 3, Q("1 in")),
    Sketcher.Constraint("DistanceX", 6, 3, 1, 3, Q("1 in")),
    Sketcher.Constraint("DistanceX", 7, 3, 6, 3, Q("1 in")),
    Sketcher.Constraint("DistanceX", 8, 3, 7, 3, Q("1 in")),
    Sketcher.Constraint("DistanceX", 9, 3, 8, 3, Q("1 in")),
    Sketcher.Constraint("DistanceX", 1, 3, 0, 3, Q("4 in")),
    Sketcher.Constraint("DistanceX", -1, 1, 0, 3, Q("15.5 in")),
    Sketcher.Constraint("DistanceY", 0, 3, -1, 1, Q("0.5 in")),
])
sketch6.setExpression("Constraints[18]", "Params.sketch6_diameter")
pocket5 = body.newObject("PartDesign::Pocket", "Pocket004")
pocket5.Profile = sketch6
pocket5.setExpression("Length", "Params.pocket5_length")

sketch7 = body.newObject("Sketcher::SketchObject", "Sketch006")
sketch7.AttachmentSupport = (doc.getObject("XY_Plane"), [""])
sketch7.MapMode = "FlatFace"
sketch7.AttachmentOffset = App.Placement(V(0, 0, 0.125 * 25.4), App.Rotation())
add_polygon(sketch7, [(311.15, -279.4), (292.1, -279.4), (292.1, -304.8), (311.15, -304.8)])
add_polygon(sketch7, [(374.65, -279.4), (374.65, -304.8), (393.7, -304.8), (393.7, -279.4)])
sketch7.addConstraint([
    Sketcher.Constraint("Horizontal", 0),
    Sketcher.Constraint("Vertical", 1),
    Sketcher.Constraint("Horizontal", 2),
    Sketcher.Constraint("Vertical", 3),
    Sketcher.Constraint("Vertical", 4),
    Sketcher.Constraint("Horizontal", 5),
    Sketcher.Constraint("Vertical", 6),
    Sketcher.Constraint("Horizontal", 7),
    Sketcher.Constraint("Horizontal", 2, 2, 4, 2),
    Sketcher.Constraint("Horizontal", 3, 2, 6, 2),
    Sketcher.Constraint("Equal", 2, 5),
    Sketcher.Constraint("DistanceY", 1, 2, 1, 1, Q("1 in")),
    Sketcher.Constraint("DistanceX", 0, 2, 0, 1, Q("0.75 in")),
    Sketcher.Constraint("DistanceY", 0, 2, -1, 1, Q("11 in")),
    Sketcher.Constraint("DistanceX", 1, 2, 5, 2, Q("4 in")),
    Sketcher.Constraint("DistanceX", -1, 1, 0, 2, Q("11.5 in")),
])
sketch7.setExpression("Constraints[19]", "Params.sketch7_height")
sketch7.setExpression("Constraints[20]", "Params.sketch7_width")
pocket6 = body.newObject("PartDesign::Pocket", "Pocket005")
pocket6.Profile = sketch7
pocket6.setExpression("Length", "Params.pocket6_length")

doc.recompute()
